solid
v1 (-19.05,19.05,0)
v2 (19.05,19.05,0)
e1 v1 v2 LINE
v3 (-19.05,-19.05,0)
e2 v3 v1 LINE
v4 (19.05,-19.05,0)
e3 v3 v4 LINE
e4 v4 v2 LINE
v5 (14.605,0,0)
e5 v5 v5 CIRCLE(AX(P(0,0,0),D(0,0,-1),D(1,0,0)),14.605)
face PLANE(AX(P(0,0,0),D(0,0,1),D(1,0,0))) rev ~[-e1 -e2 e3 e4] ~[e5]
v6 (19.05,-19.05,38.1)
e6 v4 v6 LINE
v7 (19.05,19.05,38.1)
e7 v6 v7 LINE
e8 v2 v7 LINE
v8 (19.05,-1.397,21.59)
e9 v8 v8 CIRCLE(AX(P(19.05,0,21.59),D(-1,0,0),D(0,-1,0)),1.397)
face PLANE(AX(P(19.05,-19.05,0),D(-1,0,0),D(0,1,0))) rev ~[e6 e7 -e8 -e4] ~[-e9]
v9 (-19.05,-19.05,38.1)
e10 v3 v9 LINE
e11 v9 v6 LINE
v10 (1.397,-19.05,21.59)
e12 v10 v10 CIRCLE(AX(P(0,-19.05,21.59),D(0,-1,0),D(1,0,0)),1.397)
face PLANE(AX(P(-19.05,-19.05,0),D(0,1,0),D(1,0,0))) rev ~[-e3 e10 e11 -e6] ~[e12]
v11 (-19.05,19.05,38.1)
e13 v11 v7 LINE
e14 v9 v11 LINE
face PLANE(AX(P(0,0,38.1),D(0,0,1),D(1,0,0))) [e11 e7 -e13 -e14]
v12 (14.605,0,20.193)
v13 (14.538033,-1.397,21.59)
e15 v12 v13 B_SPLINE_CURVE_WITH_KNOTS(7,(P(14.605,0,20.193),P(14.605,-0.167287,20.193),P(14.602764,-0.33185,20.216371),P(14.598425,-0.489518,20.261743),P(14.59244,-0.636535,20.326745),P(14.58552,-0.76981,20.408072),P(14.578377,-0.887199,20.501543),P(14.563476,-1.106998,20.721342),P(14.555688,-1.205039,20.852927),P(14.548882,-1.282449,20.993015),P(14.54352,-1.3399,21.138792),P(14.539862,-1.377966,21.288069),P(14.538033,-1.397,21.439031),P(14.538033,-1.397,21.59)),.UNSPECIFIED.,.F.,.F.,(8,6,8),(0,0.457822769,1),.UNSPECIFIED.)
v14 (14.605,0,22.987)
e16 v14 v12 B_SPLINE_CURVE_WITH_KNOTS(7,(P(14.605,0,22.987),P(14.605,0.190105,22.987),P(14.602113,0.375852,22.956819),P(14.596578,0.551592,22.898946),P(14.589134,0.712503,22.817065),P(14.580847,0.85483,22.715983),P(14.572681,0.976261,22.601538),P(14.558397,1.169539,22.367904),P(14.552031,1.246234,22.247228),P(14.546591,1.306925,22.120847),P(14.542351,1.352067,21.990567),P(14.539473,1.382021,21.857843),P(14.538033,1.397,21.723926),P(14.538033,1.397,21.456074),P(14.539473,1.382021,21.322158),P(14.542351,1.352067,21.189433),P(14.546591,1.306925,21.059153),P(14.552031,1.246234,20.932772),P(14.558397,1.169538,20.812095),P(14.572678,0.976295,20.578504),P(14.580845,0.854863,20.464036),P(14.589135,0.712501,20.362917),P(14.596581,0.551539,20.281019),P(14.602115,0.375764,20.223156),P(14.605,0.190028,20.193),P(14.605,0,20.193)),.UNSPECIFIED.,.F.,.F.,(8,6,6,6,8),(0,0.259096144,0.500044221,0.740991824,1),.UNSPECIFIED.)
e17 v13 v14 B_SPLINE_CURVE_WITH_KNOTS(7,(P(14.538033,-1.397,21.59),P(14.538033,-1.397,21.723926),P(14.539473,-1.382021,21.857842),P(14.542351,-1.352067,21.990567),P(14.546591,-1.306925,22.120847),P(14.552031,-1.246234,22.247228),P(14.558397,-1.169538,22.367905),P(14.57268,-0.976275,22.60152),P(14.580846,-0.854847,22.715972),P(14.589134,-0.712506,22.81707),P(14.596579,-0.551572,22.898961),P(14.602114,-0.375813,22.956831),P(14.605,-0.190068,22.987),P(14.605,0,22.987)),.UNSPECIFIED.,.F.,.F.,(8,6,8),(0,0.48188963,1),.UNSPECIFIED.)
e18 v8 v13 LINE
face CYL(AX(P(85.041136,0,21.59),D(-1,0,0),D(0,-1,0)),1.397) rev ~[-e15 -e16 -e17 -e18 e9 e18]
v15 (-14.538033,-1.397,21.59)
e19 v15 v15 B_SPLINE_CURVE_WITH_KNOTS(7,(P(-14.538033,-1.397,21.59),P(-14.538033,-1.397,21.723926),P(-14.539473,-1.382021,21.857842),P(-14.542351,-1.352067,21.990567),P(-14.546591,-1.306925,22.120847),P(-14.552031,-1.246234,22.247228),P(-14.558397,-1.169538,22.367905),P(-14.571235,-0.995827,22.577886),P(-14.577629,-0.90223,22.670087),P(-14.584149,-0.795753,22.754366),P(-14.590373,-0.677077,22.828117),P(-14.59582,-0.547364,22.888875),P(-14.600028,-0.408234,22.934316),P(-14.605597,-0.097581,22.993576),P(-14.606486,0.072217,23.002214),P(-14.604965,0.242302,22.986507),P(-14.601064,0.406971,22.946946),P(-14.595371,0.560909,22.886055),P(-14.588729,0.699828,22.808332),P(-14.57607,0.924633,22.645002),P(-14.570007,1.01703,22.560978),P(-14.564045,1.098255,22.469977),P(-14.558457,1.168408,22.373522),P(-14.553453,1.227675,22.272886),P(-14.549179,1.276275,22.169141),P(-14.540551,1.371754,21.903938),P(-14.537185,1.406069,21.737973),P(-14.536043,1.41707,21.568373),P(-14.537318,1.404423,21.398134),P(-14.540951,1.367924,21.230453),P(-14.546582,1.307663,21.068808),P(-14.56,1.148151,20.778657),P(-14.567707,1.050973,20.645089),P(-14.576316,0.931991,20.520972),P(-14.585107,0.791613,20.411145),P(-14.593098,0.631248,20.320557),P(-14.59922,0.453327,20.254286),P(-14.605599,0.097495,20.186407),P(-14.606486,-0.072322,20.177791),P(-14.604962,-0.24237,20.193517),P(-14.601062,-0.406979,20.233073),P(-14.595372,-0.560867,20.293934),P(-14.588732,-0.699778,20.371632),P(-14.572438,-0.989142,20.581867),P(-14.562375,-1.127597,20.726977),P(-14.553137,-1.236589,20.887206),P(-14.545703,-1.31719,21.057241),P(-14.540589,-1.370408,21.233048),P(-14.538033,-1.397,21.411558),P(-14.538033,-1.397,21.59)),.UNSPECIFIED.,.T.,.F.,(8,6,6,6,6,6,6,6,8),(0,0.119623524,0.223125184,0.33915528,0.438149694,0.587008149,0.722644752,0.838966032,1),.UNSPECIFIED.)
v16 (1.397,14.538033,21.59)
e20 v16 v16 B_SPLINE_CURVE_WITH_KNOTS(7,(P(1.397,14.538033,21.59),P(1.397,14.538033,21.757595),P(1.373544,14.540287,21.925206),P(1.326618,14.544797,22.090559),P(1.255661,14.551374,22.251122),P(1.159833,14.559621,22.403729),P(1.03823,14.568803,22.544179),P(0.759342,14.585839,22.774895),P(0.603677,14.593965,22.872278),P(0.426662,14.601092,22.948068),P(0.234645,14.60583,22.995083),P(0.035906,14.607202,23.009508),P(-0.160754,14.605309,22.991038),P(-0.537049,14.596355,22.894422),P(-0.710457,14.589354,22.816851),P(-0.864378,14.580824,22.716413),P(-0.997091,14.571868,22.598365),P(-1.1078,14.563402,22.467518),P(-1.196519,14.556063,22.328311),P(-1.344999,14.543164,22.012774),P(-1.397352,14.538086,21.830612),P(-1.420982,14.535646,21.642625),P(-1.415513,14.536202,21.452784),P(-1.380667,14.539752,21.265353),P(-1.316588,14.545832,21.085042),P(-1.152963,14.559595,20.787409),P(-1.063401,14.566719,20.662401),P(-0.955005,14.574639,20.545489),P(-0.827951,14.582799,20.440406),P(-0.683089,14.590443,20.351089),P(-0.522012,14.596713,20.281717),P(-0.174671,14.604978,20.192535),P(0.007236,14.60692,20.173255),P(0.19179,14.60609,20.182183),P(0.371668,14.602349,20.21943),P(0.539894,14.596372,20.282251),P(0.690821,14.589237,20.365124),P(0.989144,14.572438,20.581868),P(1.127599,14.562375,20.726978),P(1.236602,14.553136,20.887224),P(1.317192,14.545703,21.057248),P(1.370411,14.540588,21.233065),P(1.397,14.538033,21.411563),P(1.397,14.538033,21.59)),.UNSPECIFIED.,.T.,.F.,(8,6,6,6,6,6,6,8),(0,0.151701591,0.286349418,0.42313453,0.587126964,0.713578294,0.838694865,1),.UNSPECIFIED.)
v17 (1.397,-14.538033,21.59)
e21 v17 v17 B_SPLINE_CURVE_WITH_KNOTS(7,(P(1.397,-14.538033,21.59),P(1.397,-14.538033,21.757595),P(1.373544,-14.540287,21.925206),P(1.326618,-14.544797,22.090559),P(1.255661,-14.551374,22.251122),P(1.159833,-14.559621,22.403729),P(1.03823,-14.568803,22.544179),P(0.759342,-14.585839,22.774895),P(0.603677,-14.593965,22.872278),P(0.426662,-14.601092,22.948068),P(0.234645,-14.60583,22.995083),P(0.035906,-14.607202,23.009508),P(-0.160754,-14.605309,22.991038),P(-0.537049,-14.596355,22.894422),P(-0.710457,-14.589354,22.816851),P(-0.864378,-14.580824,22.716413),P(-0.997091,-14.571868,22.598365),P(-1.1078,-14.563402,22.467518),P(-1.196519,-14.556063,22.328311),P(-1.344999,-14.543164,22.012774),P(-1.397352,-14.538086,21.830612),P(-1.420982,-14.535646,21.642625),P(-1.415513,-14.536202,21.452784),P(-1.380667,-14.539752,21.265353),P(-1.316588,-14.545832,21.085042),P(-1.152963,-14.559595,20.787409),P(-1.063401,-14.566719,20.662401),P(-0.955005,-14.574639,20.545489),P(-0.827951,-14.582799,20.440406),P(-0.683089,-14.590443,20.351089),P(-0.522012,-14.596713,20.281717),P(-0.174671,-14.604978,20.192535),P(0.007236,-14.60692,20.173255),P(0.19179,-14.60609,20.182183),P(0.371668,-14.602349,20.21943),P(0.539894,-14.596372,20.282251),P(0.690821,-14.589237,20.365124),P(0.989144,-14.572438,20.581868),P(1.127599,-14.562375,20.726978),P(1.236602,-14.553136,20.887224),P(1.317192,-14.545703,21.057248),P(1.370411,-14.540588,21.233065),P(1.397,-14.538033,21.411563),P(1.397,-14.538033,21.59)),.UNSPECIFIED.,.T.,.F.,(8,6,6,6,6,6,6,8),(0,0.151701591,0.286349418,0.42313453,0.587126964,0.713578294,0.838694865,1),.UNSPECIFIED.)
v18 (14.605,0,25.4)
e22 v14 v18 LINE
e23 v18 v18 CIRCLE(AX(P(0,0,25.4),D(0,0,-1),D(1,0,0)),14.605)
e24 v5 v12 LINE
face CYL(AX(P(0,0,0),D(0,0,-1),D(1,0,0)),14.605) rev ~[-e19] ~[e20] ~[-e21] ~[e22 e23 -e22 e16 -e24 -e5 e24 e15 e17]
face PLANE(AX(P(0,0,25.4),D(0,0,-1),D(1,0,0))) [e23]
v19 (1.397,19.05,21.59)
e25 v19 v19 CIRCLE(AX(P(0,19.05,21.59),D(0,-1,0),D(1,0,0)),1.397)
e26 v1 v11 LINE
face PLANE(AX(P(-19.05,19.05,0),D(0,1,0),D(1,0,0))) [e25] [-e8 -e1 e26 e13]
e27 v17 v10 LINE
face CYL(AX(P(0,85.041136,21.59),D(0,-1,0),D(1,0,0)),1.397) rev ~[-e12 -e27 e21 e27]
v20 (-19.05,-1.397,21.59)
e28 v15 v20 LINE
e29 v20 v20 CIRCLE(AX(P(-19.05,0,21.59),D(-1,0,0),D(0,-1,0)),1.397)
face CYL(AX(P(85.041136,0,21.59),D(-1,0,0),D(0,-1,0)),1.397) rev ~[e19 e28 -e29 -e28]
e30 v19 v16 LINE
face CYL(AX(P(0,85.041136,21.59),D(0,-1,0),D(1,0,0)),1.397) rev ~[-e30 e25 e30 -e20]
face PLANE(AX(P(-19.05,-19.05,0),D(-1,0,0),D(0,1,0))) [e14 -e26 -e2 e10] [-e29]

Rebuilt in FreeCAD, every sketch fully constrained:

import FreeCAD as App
import Part
import Sketcher
Q = App.Units.Quantity

doc = App.newDocument("Part")
body = doc.addObject("PartDesign::Body", "Body")

# Sketch on XY plane
sketch1 = body.newObject("Sketcher::SketchObject", "Sketch")
sketch1.AttachmentSupport = (doc.getObject("XY_Plane"), [""])
sketch1.MapMode = "FlatFace"
sketch1.addGeometry([
    Part.LineSegment(App.Vector(-19, 19, 0), App.Vector(-19, -19, 0)),
    Part.LineSegment(App.Vector(-19, -19, 0), App.Vector(19, -19, 0)),
    Part.LineSegment(App.Vector(19, -19, 0), App.Vector(19, 19, 0)),
    Part.LineSegment(App.Vector(19, 19, 0), App.Vector(-19, 19, 0)),
], False)
sketch1.addConstraint([
    Sketcher.Constraint("Coincident", 0, 2, 1, 1),
    Sketcher.Constraint("Coincident", 1, 2, 2, 1),
    Sketcher.Constraint("Coincident", 2, 2, 3, 1),
    Sketcher.Constraint("Coincident", 3, 2, 0, 1),
    Sketcher.Constraint("Vertical", 0),
    Sketcher.Constraint("Horizontal", 1),
    Sketcher.Constraint("Vertical", 2),
    Sketcher.Constraint("Horizontal", 3),
    Sketcher.Constraint("Symmetric", 0, 2, 2, 2, -1, 1),
    Sketcher.Constraint("Equal", 3, 0),
    Sketcher.Constraint("DistanceX", 1, 1, 1, 2, Q("1.5 in")),
])
pad1 = body.newObject("PartDesign::Pad", "Pad")
pad1.Profile = sketch1
pad1.Length = Q("1.5 in")

# Sketch on XY plane
sketch2 = body.newObject("Sketcher::SketchObject", "Sketch001")
sketch2.AttachmentSupport = (doc.getObject("XY_Plane"), [""])
sketch2.MapMode = "FlatFace"
sketch2.addGeometry(Part.Circle(App.Vector(0, 0, 0), App.Vector(0, 0, 1), 15), False)
sketch2.addConstraint([
    Sketcher.Constraint("Coincident", 0, 3, -1, 1),
    Sketcher.Constraint("Diameter", 0, Q("1.15 in")),
])
pocket1 = body.newObject("PartDesign::Pocket", "Pocket")
pocket1.Profile = sketch2
pocket1.Length = Q("1 in")
pocket1.Reversed = True

# Sketch on XZ plane
sketch3 = body.newObject("Sketcher::SketchObject", "Sketch002")
sketch3.AttachmentSupport = (doc.getObject("XZ_Plane"), [""])
sketch3.MapMode = "FlatFace"
sketch3.AttachmentOffset = App.Placement(App.Vector(0, 0, -0.75 * 25.4), App.Rotation())
sketch3.addGeometry(Part.Circle(App.Vector(0, 21.6, 0), App.Vector(0, 0, 1), 1.4), False)
sketch3.addConstraint([
    Sketcher.Constraint("PointOnObject", 0, 3, -2),
    Sketcher.Constraint("Diameter", 0, Q("0.11 in")),
    Sketcher.Constraint("DistanceY", -1, 1, 0, 3, Q("0.85 in")),
])
doc.recompute()
hole = body.newObject("PartDesign::Hole", "Hole")
hole.Profile = sketch3
hole.ThreadType = "None"
hole.Diameter = Q("0.11 in")
hole.DepthType = "ThroughAll"
hole.Reversed = True

# Sketch on YZ plane
sketch4 = body.newObject("Sketcher::SketchObject", "Sketch003")
sketch4.AttachmentSupport = (doc.getObject("YZ_Plane"), [""])
sketch4.MapMode = "FlatFace"
sketch4.AttachmentOffset = App.Placement(App.Vector(0, 0, 0.75 * 25.4), App.Rotation())
sketch4.addGeometry(Part.Circle(App.Vector(0, 21.6, 0), App.Vector(0, 0, 1), 1.4), False)
sketch4.addConstraint([
    Sketcher.Constraint("PointOnObject", 0, 3, -2),
    Sketcher.Constraint("Diameter", 0, Q("0.11 in")),
    Sketcher.Constraint("DistanceY", -1, 1, 0, 3, Q("0.85 in")),
])
doc.recompute()
hole2 = body.newObject("PartDesign::Hole", "Hole001")
hole2.Profile = sketch4
hole2.ThreadType = "None"
hole2.Diameter = Q("0.11 in")
hole2.DepthType = "ThroughAll"

doc.recompute()
